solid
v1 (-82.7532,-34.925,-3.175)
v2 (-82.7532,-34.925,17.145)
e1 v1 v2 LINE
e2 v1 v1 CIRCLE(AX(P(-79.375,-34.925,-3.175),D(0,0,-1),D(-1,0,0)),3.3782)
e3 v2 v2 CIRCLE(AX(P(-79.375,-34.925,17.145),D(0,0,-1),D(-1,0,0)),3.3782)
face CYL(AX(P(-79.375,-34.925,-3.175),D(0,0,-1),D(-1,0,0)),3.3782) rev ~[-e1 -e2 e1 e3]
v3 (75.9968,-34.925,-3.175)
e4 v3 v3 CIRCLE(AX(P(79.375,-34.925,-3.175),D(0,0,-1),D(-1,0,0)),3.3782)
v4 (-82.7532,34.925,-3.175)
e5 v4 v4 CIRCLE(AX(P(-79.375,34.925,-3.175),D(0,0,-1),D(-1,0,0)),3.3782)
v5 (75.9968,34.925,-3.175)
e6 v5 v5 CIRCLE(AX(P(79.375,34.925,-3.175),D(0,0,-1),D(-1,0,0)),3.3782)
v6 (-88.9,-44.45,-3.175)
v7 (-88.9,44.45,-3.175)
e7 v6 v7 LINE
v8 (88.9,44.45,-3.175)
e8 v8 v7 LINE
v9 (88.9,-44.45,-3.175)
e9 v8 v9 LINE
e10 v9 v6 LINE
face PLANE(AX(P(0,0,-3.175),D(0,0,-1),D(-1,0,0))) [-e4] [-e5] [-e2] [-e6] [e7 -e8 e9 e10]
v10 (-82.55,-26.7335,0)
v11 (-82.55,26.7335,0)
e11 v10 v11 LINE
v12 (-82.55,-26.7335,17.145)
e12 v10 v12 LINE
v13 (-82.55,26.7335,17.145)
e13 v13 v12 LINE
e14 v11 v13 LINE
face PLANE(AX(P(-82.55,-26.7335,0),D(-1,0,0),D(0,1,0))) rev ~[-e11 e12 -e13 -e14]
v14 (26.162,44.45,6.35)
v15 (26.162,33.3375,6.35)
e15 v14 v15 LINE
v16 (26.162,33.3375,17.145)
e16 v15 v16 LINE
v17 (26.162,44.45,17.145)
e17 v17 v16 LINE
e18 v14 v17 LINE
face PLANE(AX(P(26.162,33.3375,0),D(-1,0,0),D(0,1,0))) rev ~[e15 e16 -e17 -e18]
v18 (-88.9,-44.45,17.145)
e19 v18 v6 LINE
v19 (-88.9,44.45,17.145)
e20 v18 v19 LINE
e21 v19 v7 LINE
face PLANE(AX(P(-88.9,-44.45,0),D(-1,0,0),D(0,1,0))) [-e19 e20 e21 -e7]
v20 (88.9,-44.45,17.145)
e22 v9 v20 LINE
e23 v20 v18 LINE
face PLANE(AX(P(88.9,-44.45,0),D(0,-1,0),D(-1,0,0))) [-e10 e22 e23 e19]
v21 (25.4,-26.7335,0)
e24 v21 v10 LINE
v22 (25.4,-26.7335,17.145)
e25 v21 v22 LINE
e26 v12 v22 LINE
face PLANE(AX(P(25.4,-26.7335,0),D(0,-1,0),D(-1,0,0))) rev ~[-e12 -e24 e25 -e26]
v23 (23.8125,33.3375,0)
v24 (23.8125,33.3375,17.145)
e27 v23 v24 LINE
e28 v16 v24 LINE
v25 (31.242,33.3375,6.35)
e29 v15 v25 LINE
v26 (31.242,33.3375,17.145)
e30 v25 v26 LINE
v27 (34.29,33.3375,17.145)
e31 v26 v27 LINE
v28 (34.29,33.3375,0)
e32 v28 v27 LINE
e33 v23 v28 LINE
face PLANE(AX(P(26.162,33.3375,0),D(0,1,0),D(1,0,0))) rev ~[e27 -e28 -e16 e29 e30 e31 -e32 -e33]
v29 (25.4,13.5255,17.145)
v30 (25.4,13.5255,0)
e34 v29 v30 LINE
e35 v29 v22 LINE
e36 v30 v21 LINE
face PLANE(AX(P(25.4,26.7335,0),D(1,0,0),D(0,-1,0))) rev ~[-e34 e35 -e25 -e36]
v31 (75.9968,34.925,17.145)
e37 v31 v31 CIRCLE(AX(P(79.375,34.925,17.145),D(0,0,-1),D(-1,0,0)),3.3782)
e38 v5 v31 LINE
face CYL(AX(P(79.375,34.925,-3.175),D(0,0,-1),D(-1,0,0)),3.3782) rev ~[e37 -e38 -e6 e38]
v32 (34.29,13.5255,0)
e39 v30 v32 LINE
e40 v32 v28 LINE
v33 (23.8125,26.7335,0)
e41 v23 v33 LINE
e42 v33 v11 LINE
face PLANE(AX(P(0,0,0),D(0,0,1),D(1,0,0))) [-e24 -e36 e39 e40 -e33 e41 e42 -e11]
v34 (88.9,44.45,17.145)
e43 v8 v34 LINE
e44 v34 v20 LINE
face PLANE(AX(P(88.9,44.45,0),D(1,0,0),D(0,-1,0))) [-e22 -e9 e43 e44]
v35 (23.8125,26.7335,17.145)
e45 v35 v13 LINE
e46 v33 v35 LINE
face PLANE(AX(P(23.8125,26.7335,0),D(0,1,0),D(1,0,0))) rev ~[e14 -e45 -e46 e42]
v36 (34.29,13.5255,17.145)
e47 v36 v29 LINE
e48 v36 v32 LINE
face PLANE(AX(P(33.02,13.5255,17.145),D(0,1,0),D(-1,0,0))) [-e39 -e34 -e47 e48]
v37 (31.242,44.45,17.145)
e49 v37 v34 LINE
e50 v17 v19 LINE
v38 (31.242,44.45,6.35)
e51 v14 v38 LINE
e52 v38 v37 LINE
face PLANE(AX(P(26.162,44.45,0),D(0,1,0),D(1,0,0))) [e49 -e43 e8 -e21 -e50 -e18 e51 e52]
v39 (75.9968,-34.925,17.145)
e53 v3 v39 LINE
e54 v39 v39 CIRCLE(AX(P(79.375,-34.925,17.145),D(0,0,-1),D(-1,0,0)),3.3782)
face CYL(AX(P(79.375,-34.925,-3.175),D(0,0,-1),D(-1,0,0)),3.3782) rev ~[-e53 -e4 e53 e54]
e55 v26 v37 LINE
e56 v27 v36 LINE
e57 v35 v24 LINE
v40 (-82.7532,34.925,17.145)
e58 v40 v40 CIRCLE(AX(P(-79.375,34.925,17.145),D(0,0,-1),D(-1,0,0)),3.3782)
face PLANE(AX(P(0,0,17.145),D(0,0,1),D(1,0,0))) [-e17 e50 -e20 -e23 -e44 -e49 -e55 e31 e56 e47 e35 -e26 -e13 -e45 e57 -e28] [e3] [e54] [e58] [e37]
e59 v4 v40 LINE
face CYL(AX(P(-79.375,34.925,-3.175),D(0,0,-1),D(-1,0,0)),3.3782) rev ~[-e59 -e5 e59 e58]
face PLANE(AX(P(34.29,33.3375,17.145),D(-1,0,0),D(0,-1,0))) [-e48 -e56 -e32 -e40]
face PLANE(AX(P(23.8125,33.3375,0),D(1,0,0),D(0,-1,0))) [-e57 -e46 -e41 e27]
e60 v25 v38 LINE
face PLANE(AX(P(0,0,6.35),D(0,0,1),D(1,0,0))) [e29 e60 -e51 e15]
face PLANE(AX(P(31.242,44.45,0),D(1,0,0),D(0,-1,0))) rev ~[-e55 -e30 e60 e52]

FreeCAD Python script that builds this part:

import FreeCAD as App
import Part
import Sketcher
Q = App.Units.Quantity

doc = App.newDocument("Part")
body = doc.addObject("PartDesign::Body", "Body")

# Sketch on XY plane
sketch1 = body.newObject("Sketcher::SketchObject", "Sketch")
sketch1.AttachmentSupport = (doc.getObject("XY_Plane"), [""])
sketch1.MapMode = "FlatFace"
sketch1.addGeometry([
    Part.LineSegment(App.Vector(-89, -44, 0), App.Vector(89, -44, 0)),
    Part.LineSegment(App.Vector(89, -44, 0), App.Vector(89, 44, 0)),
    Part.LineSegment(App.Vector(89, 44, 0), App.Vector(-89, 44, 0)),
    Part.LineSegment(App.Vector(-89, 44, 0), App.Vector(-89, -44, 0)),
], False)
sketch1.addConstraint([
    Sketcher.Constraint("Coincident", 0, 2, 1, 1),
    Sketcher.Constraint("Coincident", 1, 2, 2, 1),
    Sketcher.Constraint("Coincident", 2, 2, 3, 1),
    Sketcher.Constraint("Coincident", 3, 2, 0, 1),
    Sketcher.Constraint("Horizontal", 0),
    Sketcher.Constraint("Vertical", 1),
    Sketcher.Constraint("Horizontal", 2),
    Sketcher.Constraint("Vertical", 3),
    Sketcher.Constraint("Symmetric", 0, 2, 2, 2, -1, 1),
    Sketcher.Constraint("DistanceX", 0, 1, 0, 2, Q("7 in")),
    Sketcher.Constraint("DistanceY", 1, 1, 1, 2, Q("3.5 in")),
])
pad1 = body.newObject("PartDesign::Pad", "Pad")
pad1.Profile = sketch1
pad1.Length = Q("0.675 in")

# Sketch on XY plane
sketch2 = body.newObject("Sketcher::SketchObject", "Sketch001")
sketch2.AttachmentSupport = (doc.getObject("XY_Plane"), [""])
sketch2.MapMode = "FlatFace"
sketch2.addGeometry([
    Part.LineSegment(App.Vector(31.2, 33.3, 0), App.Vector(31.2, 44.5, 0)),  # 0
    Part.LineSegment(App.Vector(31.2, 44.5, 0), App.Vector(26.2, 44.5, 0)),  # 1
    Part.LineSegment(App.Vector(26.2, 44.5, 0), App.Vector(26.2, 33.3, 0)),  # 2
    Part.LineSegment(App.Vector(26.2, 33.3, 0), App.Vector(23.8, 33.3, 0)),  # 3
    Part.LineSegment(App.Vector(23.8, 33.3, 0), App.Vector(23.8, 26.7, 0)),  # 4
    Part.LineSegment(App.Vector(23.8, 26.7, 0), App.Vector(25.4, 26.7, 0)),  # 5
    Part.LineSegment(App.Vector(25.4, 26.7, 0), App.Vector(25.4, 23.2, 0)),  # 6
    Part.LineSegment(App.Vector(25.4, 23.2, 0), App.Vector(34.3, 23.2, 0)),  # 7
    Part.LineSegment(App.Vector(34.3, 23.2, 0), App.Vector(34.3, 33.3, 0)),  # 8
    Part.LineSegment(App.Vector(34.3, 33.3, 0), App.Vector(31.2, 33.3, 0)),  # 9
], False)
sketch2.addConstraint([
    Sketcher.Constraint("Coincident", 0, 2, 1, 1),
    Sketcher.Constraint("Coincident", 1, 2, 2, 1),
    Sketcher.Constraint("Coincident", 2, 2, 3, 1),
    Sketcher.Constraint("Coincident", 3, 2, 4, 1),
    Sketcher.Constraint("Coincident", 4, 2, 5, 1),
    Sketcher.Constraint("Coincident", 5, 2, 6, 1),
    Sketcher.Constraint("Coincident", 6, 2, 7, 1),
    Sketcher.Constraint("Coincident", 7, 2, 8, 1),
    Sketcher.Constraint("Coincident", 8, 2, 9, 1),
    Sketcher.Constraint("Coincident", 9, 2, 0, 1),
    Sketcher.Constraint("Vertical", 0),
    Sketcher.Constraint("Horizontal", 1),
    Sketcher.Constraint("Vertical", 2),
    Sketcher.Constraint("Horizontal", 3),
    Sketcher.Constraint("Vertical", 4),
    Sketcher.Constraint("Horizontal", 5),
    Sketcher.Constraint("Vertical", 6),
    Sketcher.Constraint("Horizontal", 7),
    Sketcher.Constraint("Vertical", 8),
    Sketcher.Constraint("Horizontal", 9),
    Sketcher.Constraint("Horizontal", 3, 2, 8, 2),
    Sketcher.Constraint("DistanceX", 1, 2, 1, 1, Q("0.2 in")),
    Sketcher.Constraint("DistanceY", 8, 1, 8, 2, Q("0.4 in")),
    Sketcher.Constraint("DistanceX", 5, 1, 5, 2, Q("0.0625 in")),
    Sketcher.Constraint("DistanceX", -1, 1, 5, 2, Q("1 in")),
    Sketcher.Constraint("DistanceX", 7, 1, 7, 2, Q("0.35 in")),
    Sketcher.Constraint("DistanceX", 9, 2, 9, 1, Q("0.12 in")),
    Sketcher.Constraint("DistanceY", 4, 2, 4, 1, Q("0.26 in")),
    Sketcher.Constraint("DistanceY", 0, 1, 0, 2, Q("0.4375 in")),
    Sketcher.Constraint("DistanceY", -1, 1, 0, 2, Q("1.75 in")),
])
pocket1 = body.newObject("PartDesign::Pocket", "Pocket")
pocket1.Profile = sketch2
pocket1.Type = "ThroughAll"
pocket1.Reversed = True

# Sketch on XY plane
sketch3 = body.newObject("Sketcher::SketchObject", "Sketch002")
sketch3.AttachmentSupport = (doc.getObject("XY_Plane"), [""])
sketch3.MapMode = "FlatFace"
sketch3.addGeometry([
    Part.LineSegment(App.Vector(-89, 44, 0), App.Vector(89, 44, 0)),
    Part.LineSegment(App.Vector(89, 44, 0), App.Vector(89, -44, 0)),
    Part.LineSegment(App.Vector(89, -44, 0), App.Vector(-89, -44, 0)),
    Part.LineSegment(App.Vector(-89, -44, 0), App.Vector(-89, 44, 0)),
], False)
sketch3.addConstraint([
    Sketcher.Constraint("Coincident", 0, 2, 1, 1),
    Sketcher.Constraint("Coincident", 1, 2, 2, 1),
    Sketcher.Constraint("Coincident", 2, 2, 3, 1),
    Sketcher.Constraint("Coincident", 3, 2, 0, 1),
    Sketcher.Constraint("Horizontal", 0),
    Sketcher.Constraint("Vertical", 1),
    Sketcher.Constraint("Horizontal", 2),
    Sketcher.Constraint("Vertical", 3),
    Sketcher.Constraint("Symmetric", 0, 2, 2, 2, -1, 1),
    Sketcher.Constraint("DistanceX", 0, 1, 0, 2, Q("7 in")),
    Sketcher.Constraint("DistanceY", 1, 2, 1, 1, Q("3.5 in")),
])
pad2 = body.newObject("PartDesign::Pad", "Pad001")
pad2.Profile = sketch3
pad2.Length = Q("0.125 in")
pad2.Reversed = True

# Sketch on XY plane
sketch4 = body.newObject("Sketcher::SketchObject", "Sketch003")
sketch4.AttachmentSupport = (doc.getObject("XY_Plane"), [""])
sketch4.MapMode = "FlatFace"
sketch4.AttachmentOffset = App.Placement(App.Vector(0, 0, 0.675 * 25.4), App.Rotation())
sketch4.addGeometry([
    Part.LineSegment(App.Vector(33, -25, 0), App.Vector(70, -25, 0)),  # 0
    Part.LineSegment(App.Vector(70, -25, 0), App.Vector(70, 44, 0)),  # 1
    Part.LineSegment(App.Vector(70, 44, 0), App.Vector(64, 44, 0)),  # 2
    Part.LineSegment(App.Vector(64, 44, 0), App.Vector(64, 25, 0)),  # 3
    Part.LineSegment(App.Vector(64, 25, 0), App.Vector(33, 25, 0)),  # 4
    Part.LineSegment(App.Vector(33, 25, 0), App.Vector(33, -25, 0)),  # 5
], False)
sketch4.addConstraint([
    Sketcher.Constraint("Coincident", 0, 2, 1, 1),
    Sketcher.Constraint("Coincident", 1, 2, 2, 1),
    Sketcher.Constraint("Coincident", 2, 2, 3, 1),
    Sketcher.Constraint("Coincident", 3, 2, 4, 1),
    Sketcher.Constraint("Coincident", 4, 2, 5, 1),
    Sketcher.Constraint("Coincident", 5, 2, 0, 1),
    Sketcher.Constraint("Horizontal", 0),
    Sketcher.Constraint("Vertical", 1),
    Sketcher.Constraint("Horizontal", 2),
    Sketcher.Constraint("Vertical", 3),
    Sketcher.Constraint("Horizontal", 4),
    Sketcher.Constraint("Vertical", 5),
    Sketcher.Constraint("DistanceY", 5, 2, 5, 1, Q("2 in")),
    Sketcher.Constraint("DistanceX", 0, 1, 0, 2, Q("1.45 in")),
    Sketcher.Constraint("DistanceX", 2, 2, 2, 1, Q("0.25 in")),
    Sketcher.Constraint("DistanceY", 3, 2, 3, 1, Q("0.75 in")),
    Sketcher.Constraint("DistanceY", 0, 2, -1, 1, Q("1 in")),
    Sketcher.Constraint("DistanceX", -1, 1, 2, 2, Q("2.5 in")),
])
pocket2 = body.newObject("PartDesign::Pocket", "Pocket001")
pocket2.Profile = sketch4
pocket2.Length = Q("0.675 in")

# Sketch on XY plane
sketch5 = body.newObject("Sketcher::SketchObject", "Sketch004")
sketch5.AttachmentSupport = (doc.getObject("XY_Plane"), [""])
sketch5.MapMode = "FlatFace"
sketch5.AttachmentOffset = App.Placement(App.Vector(0, 0, 0.675 * 25.4), App.Rotation())
sketch5.addGeometry([
    Part.LineSegment(App.Vector(39, 38, 0), App.Vector(39, 25, 0)),
    Part.LineSegment(App.Vector(39, 25, 0), App.Vector(64, 25, 0)),
    Part.LineSegment(App.Vector(64, 25, 0), App.Vector(64, 38, 0)),
    Part.LineSegment(App.Vector(64, 38, 0), App.Vector(39, 38, 0)),
], False)
sketch5.addConstraint([
    Sketcher.Constraint("Coincident", 0, 2, 1, 1),
    Sketcher.Constraint("Coincident", 1, 2, 2, 1),
    Sketcher.Constraint("Coincident", 2, 2, 3, 1),
    Sketcher.Constraint("Coincident", 3, 2, 0, 1),
    Sketcher.Constraint("Vertical", 0),
    Sketcher.Constraint("Horizontal", 1),
    Sketcher.Constraint("Vertical", 2),
    Sketcher.Constraint("Horizontal", 3),
    Sketcher.Constraint("DistanceY", 0, 2, 0, 1, Q("0.5 in")),
    Sketcher.Constraint("DistanceY", -1, 1, 0, 2, Q("1 in")),
    Sketcher.Constraint("DistanceX", 1, 1, 1, 2, Q("0.95 in")),
    Sketcher.Constraint("DistanceX", -1, 1, 1, 2, Q("2.5 in")),
])
pocket3 = body.newObject("PartDesign::Pocket", "Pocket002")
pocket3.Profile = sketch5
pocket3.Length = Q("0.375 in")

# Sketch on XY plane
sketch6 = body.newObject("Sketcher::SketchObject", "Sketch005")
sketch6.AttachmentSupport = (doc.getObject("XY_Plane"), [""])
sketch6.MapMode = "FlatFace"
sketch6.AttachmentOffset = App.Placement(App.Vector(0, 0, 0.675 * 25.4), App.Rotation())
sketch6.addGeometry([
    Part.LineSegment(App.Vector(25.4, -22.2, 0), App.Vector(36.2, -22.2, 0)),  # 0
    Part.LineSegment(App.Vector(36.2, -22.2, 0), App.Vector(36.2, 25.4, 0)),  # 1
    Part.LineSegment(App.Vector(36.2, 25.4, 0), App.Vector(39.4, 25.4, 0)),  # 2
    Part.LineSegment(App.Vector(39.4, 25.4, 0), App.Vector(39.4, 38.1, 0)),  # 3
    Part.LineSegment(App.Vector(39.4, 38.1, 0), App.Vector(33, 38.1, 0)),  # 4
    Part.LineSegment(App.Vector(33, 38.1, 0), App.Vector(33, -19.1, 0)),  # 5
    Part.LineSegment(App.Vector(33, -19.1, 0), App.Vector(25.4, -19.1, 0)),  # 6
    Part.LineSegment(App.Vector(25.4, -19.1, 0), App.Vector(25.4, -22.2, 0)),  # 7
], False)
sketch6.addConstraint([
    Sketcher.Constraint("Coincident", 0, 2, 1, 1),
    Sketcher.Constraint("Coincident", 1, 2, 2, 1),
    Sketcher.Constraint("Coincident", 2, 2, 3, 1),
    Sketcher.Constraint("Coincident", 3, 2, 4, 1),
    Sketcher.Constraint("Coincident", 4, 2, 5, 1),
    Sketcher.Constraint("Coincident", 5, 2, 6, 1),
    Sketcher.Constraint("Coincident", 6, 2, 7, 1),
    Sketcher.Constraint("Coincident", 7, 2, 0, 1),
    Sketcher.Constraint("Horizontal", 0),
    Sketcher.Constraint("Vertical", 1),
    Sketcher.Constraint("Horizontal", 2),
    Sketcher.Constraint("Vertical", 3),
    Sketcher.Constraint("Horizontal", 4),
    Sketcher.Constraint("Vertical", 5),
    Sketcher.Constraint("Horizontal", 6),
    Sketcher.Constraint("Vertical", 7),
    Sketcher.Constraint("Equal", 2, 7),
    Sketcher.Constraint("DistanceY", 3, 1, 3, 2, Q("0.5 in")),
    Sketcher.Constraint("DistanceX", 2, 1, 2, 2, Q("0.125 in")),
    Sketcher.Constraint("DistanceX", 6, 2, 6, 1, Q("0.3 in")),
    Sketcher.Constraint("DistanceY", 0, 2, -1, 1, Q("0.875 in")),
    Sketcher.Constraint("DistanceY", -1, 1, 1, 2, Q("1 in")),
    Sketcher.Constraint("DistanceX", -1, 1, 6, 2, Q("1 in")),
    Sketcher.Constraint("DistanceX", 4, 2, 1, 2, Q("0.125 in")),
])
pocket4 = body.newObject("PartDesign::Pocket", "Pocket003")
pocket4.Profile = sketch6
pocket4.Length = Q("0.375 in")

# Sketch on XY plane
sketch7 = body.newObject("Sketcher::SketchObject", "Sketch006")
sketch7.AttachmentSupport = (doc.getObject("XY_Plane"), [""])
sketch7.MapMode = "FlatFace"
sketch7.addGeometry([
    Part.LineSegment(App.Vector(31, 44, 0), App.Vector(26, 44, 0)),
    Part.LineSegment(App.Vector(26, 44, 0), App.Vector(26, 33, 0)),
    Part.LineSegment(App.Vector(26, 33, 0), App.Vector(31, 33, 0)),
    Part.LineSegment(App.Vector(31, 33, 0), App.Vector(31, 44, 0)),
], False)
sketch7.addConstraint([
    Sketcher.Constraint("Coincident", 0, 2, 1, 1),
    Sketcher.Constraint("Coincident", 1, 2, 2, 1),
    Sketcher.Constraint("Coincident", 2, 2, 3, 1),
    Sketcher.Constraint("Coincident", 3, 2, 0, 1),
    Sketcher.Constraint("Horizontal", 0),
    Sketcher.Constraint("Vertical", 1),
    Sketcher.Constraint("Horizontal", 2),
    Sketcher.Constraint("Vertical", 3),
    Sketcher.Constraint("DistanceX", 0, 2, 0, 1, Q("0.2 in")),
    Sketcher.Constraint("DistanceY", 1, 2, 1, 1, Q("0.4375 in")),
    Sketcher.Constraint("DistanceX", -1, 1, 0, 2, Q("1.03 in")),
    Sketcher.Constraint("DistanceY", -1, 1, 0, 2, Q("1.75 in")),
])
pad3 = body.newObject("PartDesign::Pad", "Pad002")
pad3.Profile = sketch7
pad3.Length = Q("0.25 in")

# Sketch on XY plane
sketch8 = body.newObject("Sketcher::SketchObject", "Sketch007")
sketch8.AttachmentSupport = (doc.getObject("XY_Plane"), [""])
sketch8.MapMode = "FlatFace"
sketch8.addGeometry([
    Part.LineSegment(App.Vector(25, 27, 0), App.Vector(-83, 27, 0)),
    Part.LineSegment(App.Vector(-83, 27, 0), App.Vector(-83, -27, 0)),
    Part.LineSegment(App.Vector(-83, -27, 0), App.Vector(25, -27, 0)),
    Part.LineSegment(App.Vector(25, -27, 0), App.Vector(25, 27, 0)),
], False)
sketch8.addConstraint([
    Sketcher.Constraint("Coincident", 0, 2, 1, 1),
    Sketcher.Constraint("Coincident", 1, 2, 2, 1),
    Sketcher.Constraint("Coincident", 2, 2, 3, 1),
    Sketcher.Constraint("Coincident", 3, 2, 0, 1),
    Sketcher.Constraint("Horizontal", 0),
    Sketcher.Constraint("Vertical", 1),
    Sketcher.Constraint("Horizontal", 2),
    Sketcher.Constraint("Vertical", 3),
    Sketcher.Constraint("DistanceX", 0, 2, 0, 1, Q("4.25 in")),
    Sketcher.Constraint("DistanceY", 1, 2, 1, 1, Q("2.105 in")),
    Sketcher.Constraint("DistanceX", -1, 1, 2, 2, Q("1 in")),
    Sketcher.Constraint("DistanceY", -1, 1, 0, 2, Q("1.0525 in")),
])
pocket5 = body.newObject("PartDesign::Pocket", "Pocket004")
pocket5.Profile = sketch8
pocket5.Type = "ThroughAll"
pocket5.Reversed = True

# Sketch on XY plane
sketch9 = body.newObject("Sketcher::SketchObject", "Sketch008")
sketch9.AttachmentSupport = (doc.getObject("XY_Plane"), [""])
sketch9.MapMode = "FlatFace"
sketch9.AttachmentOffset = App.Placement(App.Vector(0, 0, 0.675 * 25.4), App.Rotation())
sketch9.addGeometry([
    Part.LineSegment(App.Vector(21, 23, 0), App.Vector(21, 14, 0)),
    Part.LineSegment(App.Vector(21, 14, 0), App.Vector(34, 14, 0)),
    Part.LineSegment(App.Vector(34, 14, 0), App.Vector(34, 23, 0)),
    Part.LineSegment(App.Vector(34, 23, 0), App.Vector(21, 23, 0)),
], False)
sketch9.addConstraint([
    Sketcher.Constraint("Coincident", 0, 2, 1, 1),
    Sketcher.Constraint("Coincident", 1, 2, 2, 1),
    Sketcher.Constraint("Coincident", 2, 2, 3, 1),
    Sketcher.Constraint("Coincident", 3, 2, 0, 1),
    Sketcher.Constraint("Vertical", 0),
    Sketcher.Constraint("Horizontal", 1),
    Sketcher.Constraint("Vertical", 2),
    Sketcher.Constraint("Horizontal", 3),
    Sketcher.Constraint("DistanceY", 0, 2, 0, 1, Q("0.38 in")),
    Sketcher.Constraint("DistanceX", 1, 1, 1, 2, Q("0.525 in")),
    Sketcher.Constraint("DistanceX", -1, 1, 1, 2, Q("1.35 in")),
    Sketcher.Constraint("DistanceY", -1, 1, 0, 2, Q("0.5325 in")),
])
pocket6 = body.newObject("PartDesign::Pocket", "Pocket005")
pocket6.Profile = sketch9
pocket6.Length = Q("0.675 in")

# Sketch on XY plane
sketch10 = body.newObject("Sketcher::SketchObject", "Sketch009")
sketch10.AttachmentSupport = (doc.getObject("XY_Plane"), [""])
sketch10.MapMode = "FlatFace"
sketch10.AttachmentOffset = App.Placement(App.Vector(0, 0, -0.125 * 25.4), App.Rotation())
sketch10.addGeometry([
    Part.Circle(App.Vector(79.4, 34.9, 0), App.Vector(0, 0, 1), 3.4),
    Part.Circle(App.Vector(-79.4, -34.9, 0), App.Vector(0, 0, 1), 3.4),
    Part.Circle(App.Vector(-79.4, 34.9, 0), App.Vector(0, 0, 1), 3.4),
    Part.Circle(App.Vector(79.4, -34.9, 0), App.Vector(0, 0, 1), 3.4),
], False)
sketch10.addConstraint([
    Sketcher.Constraint("Equal", 0, 1),
    Sketcher.Constraint("Equal", 1, 2),
    Sketcher.Constraint("Equal", 2, 3),
    Sketcher.Constraint("Symmetric", 0, 3, 1, 3, -1, 1),
    Sketcher.Constraint("Symmetric", 2, 3, 3, 3, -1, 1),
    Sketcher.Constraint("Symmetric", 0, 3, 2, 3, -2),
    Sketcher.Constraint("Diameter", 0, Q("0.266 in")),
    Sketcher.Constraint("DistanceX", 1, 3, 0, 3, Q("6.25 in")),
    Sketcher.Constraint("DistanceY", 1, 3, 0, 3, Q("2.75 in")),
])
pocket7 = body.newObject("PartDesign::Pocket", "Pocket006")
pocket7.Profile = sketch10
pocket7.Type = "ThroughAll"
pocket7.Reversed = True

# Sketch on XY plane
sketch11 = body.newObject("Sketcher::SketchObject", "Sketch010")
sketch11.AttachmentSupport = (doc.getObject("XY_Plane"), [""])
sketch11.MapMode = "FlatFace"
sketch11.AttachmentOffset = App.Placement(App.Vector(0, 0, 0.675 * 25.4), App.Rotation())
sketch11.addGeometry([
    Part.LineSegment(App.Vector(25.4, -25.4, 0), App.Vector(69.8, -25.4, 0)),  # 0
    Part.LineSegment(App.Vector(69.8, -25.4, 0), App.Vector(69.8, 44.5, 0)),  # 1
    Part.LineSegment(App.Vector(69.8, 44.5, 0), App.Vector(63.5, 44.5, 0)),  # 2
    Part.LineSegment(App.Vector(63.5, 44.5, 0), App.Vector(63.5, 38.1, 0)),  # 3
    Part.LineSegment(App.Vector(63.5, 38.1, 0), App.Vector(33, 38.1, 0)),  # 4
    Part.LineSegment(App.Vector(33, 38.1, 0), App.Vector(33, 33.3, 0)),  # 5
    Part.LineSegment(App.Vector(33, 33.3, 0), App.Vector(34.3, 33.3, 0)),  # 6
    Part.LineSegment(App.Vector(34.3, 33.3, 0), App.Vector(34.3, 13.5, 0)),  # 7
    Part.LineSegment(App.Vector(34.3, 13.5, 0), App.Vector(25.4, 13.5, 0)),  # 8
    Part.LineSegment(App.Vector(25.4, 13.5, 0), App.Vector(25.4, -25.4, 0)),  # 9
], False)
sketch11.addConstraint([
    Sketcher.Constraint("Coincident", 0, 2, 1, 1),
    Sketcher.Constraint("Coincident", 1, 2, 2, 1),
    Sketcher.Constraint("Coincident", 2, 2, 3, 1),
    Sketcher.Constraint("Coincident", 3, 2, 4, 1),
    Sketcher.Constraint("Coincident", 4, 2, 5, 1),
    Sketcher.Constraint("Coincident", 5, 2, 6, 1),
    Sketcher.Constraint("Coincident", 6, 2, 7, 1),
    Sketcher.Constraint("Coincident", 7, 2, 8, 1),
    Sketcher.Constraint("Coincident", 8, 2, 9, 1),
    Sketcher.Constraint("Coincident", 9, 2, 0, 1),
    Sketcher.Constraint("Horizontal", 0),
    Sketcher.Constraint("Vertical", 1),
    Sketcher.Constraint("Horizontal", 2),
    Sketcher.Constraint("Vertical", 3),
    Sketcher.Constraint("Horizontal", 4),
    Sketcher.Constraint("Vertical", 5),
    Sketcher.Constraint("Horizontal", 6),
    Sketcher.Constraint("Vertical", 7),
    Sketcher.Constraint("Horizontal", 8),
    Sketcher.Constraint("Vertical", 9),
    Sketcher.Constraint("Equal", 2, 3),
    Sketcher.Constraint("DistanceX", 4, 2, 4, 1, Q("1.2 in")),
    Sketcher.Constraint("DistanceY", 0, 2, -1, 1, Q("1 in")),
    Sketcher.Constraint("DistanceX", -1, 1, 8, 2, Q("1 in")),
    Sketcher.Constraint("DistanceX", 0, 1, 0, 2, Q("1.75 in")),
    Sketcher.Constraint("DistanceX", 2, 2, 2, 1, Q("0.25 in")),
    Sketcher.Constraint("DistanceX", 6, 1, 6, 2, Q("0.05 in")),
    Sketcher.Constraint("DistanceY", 1, 1, 1, 2, Q("2.75 in")),
    Sketcher.Constraint("DistanceY", 7, 2, 7, 1, Q("0.78 in")),
    Sketcher.Constraint("DistanceY", 5, 2, 5, 1, Q("0.1875 in")),
])
pad4 = body.newObject("PartDesign::Pad", "Pad003")
pad4.Profile = sketch11
pad4.Length = Q("0.675 in")
pad4.Reversed = True

doc.recompute()
